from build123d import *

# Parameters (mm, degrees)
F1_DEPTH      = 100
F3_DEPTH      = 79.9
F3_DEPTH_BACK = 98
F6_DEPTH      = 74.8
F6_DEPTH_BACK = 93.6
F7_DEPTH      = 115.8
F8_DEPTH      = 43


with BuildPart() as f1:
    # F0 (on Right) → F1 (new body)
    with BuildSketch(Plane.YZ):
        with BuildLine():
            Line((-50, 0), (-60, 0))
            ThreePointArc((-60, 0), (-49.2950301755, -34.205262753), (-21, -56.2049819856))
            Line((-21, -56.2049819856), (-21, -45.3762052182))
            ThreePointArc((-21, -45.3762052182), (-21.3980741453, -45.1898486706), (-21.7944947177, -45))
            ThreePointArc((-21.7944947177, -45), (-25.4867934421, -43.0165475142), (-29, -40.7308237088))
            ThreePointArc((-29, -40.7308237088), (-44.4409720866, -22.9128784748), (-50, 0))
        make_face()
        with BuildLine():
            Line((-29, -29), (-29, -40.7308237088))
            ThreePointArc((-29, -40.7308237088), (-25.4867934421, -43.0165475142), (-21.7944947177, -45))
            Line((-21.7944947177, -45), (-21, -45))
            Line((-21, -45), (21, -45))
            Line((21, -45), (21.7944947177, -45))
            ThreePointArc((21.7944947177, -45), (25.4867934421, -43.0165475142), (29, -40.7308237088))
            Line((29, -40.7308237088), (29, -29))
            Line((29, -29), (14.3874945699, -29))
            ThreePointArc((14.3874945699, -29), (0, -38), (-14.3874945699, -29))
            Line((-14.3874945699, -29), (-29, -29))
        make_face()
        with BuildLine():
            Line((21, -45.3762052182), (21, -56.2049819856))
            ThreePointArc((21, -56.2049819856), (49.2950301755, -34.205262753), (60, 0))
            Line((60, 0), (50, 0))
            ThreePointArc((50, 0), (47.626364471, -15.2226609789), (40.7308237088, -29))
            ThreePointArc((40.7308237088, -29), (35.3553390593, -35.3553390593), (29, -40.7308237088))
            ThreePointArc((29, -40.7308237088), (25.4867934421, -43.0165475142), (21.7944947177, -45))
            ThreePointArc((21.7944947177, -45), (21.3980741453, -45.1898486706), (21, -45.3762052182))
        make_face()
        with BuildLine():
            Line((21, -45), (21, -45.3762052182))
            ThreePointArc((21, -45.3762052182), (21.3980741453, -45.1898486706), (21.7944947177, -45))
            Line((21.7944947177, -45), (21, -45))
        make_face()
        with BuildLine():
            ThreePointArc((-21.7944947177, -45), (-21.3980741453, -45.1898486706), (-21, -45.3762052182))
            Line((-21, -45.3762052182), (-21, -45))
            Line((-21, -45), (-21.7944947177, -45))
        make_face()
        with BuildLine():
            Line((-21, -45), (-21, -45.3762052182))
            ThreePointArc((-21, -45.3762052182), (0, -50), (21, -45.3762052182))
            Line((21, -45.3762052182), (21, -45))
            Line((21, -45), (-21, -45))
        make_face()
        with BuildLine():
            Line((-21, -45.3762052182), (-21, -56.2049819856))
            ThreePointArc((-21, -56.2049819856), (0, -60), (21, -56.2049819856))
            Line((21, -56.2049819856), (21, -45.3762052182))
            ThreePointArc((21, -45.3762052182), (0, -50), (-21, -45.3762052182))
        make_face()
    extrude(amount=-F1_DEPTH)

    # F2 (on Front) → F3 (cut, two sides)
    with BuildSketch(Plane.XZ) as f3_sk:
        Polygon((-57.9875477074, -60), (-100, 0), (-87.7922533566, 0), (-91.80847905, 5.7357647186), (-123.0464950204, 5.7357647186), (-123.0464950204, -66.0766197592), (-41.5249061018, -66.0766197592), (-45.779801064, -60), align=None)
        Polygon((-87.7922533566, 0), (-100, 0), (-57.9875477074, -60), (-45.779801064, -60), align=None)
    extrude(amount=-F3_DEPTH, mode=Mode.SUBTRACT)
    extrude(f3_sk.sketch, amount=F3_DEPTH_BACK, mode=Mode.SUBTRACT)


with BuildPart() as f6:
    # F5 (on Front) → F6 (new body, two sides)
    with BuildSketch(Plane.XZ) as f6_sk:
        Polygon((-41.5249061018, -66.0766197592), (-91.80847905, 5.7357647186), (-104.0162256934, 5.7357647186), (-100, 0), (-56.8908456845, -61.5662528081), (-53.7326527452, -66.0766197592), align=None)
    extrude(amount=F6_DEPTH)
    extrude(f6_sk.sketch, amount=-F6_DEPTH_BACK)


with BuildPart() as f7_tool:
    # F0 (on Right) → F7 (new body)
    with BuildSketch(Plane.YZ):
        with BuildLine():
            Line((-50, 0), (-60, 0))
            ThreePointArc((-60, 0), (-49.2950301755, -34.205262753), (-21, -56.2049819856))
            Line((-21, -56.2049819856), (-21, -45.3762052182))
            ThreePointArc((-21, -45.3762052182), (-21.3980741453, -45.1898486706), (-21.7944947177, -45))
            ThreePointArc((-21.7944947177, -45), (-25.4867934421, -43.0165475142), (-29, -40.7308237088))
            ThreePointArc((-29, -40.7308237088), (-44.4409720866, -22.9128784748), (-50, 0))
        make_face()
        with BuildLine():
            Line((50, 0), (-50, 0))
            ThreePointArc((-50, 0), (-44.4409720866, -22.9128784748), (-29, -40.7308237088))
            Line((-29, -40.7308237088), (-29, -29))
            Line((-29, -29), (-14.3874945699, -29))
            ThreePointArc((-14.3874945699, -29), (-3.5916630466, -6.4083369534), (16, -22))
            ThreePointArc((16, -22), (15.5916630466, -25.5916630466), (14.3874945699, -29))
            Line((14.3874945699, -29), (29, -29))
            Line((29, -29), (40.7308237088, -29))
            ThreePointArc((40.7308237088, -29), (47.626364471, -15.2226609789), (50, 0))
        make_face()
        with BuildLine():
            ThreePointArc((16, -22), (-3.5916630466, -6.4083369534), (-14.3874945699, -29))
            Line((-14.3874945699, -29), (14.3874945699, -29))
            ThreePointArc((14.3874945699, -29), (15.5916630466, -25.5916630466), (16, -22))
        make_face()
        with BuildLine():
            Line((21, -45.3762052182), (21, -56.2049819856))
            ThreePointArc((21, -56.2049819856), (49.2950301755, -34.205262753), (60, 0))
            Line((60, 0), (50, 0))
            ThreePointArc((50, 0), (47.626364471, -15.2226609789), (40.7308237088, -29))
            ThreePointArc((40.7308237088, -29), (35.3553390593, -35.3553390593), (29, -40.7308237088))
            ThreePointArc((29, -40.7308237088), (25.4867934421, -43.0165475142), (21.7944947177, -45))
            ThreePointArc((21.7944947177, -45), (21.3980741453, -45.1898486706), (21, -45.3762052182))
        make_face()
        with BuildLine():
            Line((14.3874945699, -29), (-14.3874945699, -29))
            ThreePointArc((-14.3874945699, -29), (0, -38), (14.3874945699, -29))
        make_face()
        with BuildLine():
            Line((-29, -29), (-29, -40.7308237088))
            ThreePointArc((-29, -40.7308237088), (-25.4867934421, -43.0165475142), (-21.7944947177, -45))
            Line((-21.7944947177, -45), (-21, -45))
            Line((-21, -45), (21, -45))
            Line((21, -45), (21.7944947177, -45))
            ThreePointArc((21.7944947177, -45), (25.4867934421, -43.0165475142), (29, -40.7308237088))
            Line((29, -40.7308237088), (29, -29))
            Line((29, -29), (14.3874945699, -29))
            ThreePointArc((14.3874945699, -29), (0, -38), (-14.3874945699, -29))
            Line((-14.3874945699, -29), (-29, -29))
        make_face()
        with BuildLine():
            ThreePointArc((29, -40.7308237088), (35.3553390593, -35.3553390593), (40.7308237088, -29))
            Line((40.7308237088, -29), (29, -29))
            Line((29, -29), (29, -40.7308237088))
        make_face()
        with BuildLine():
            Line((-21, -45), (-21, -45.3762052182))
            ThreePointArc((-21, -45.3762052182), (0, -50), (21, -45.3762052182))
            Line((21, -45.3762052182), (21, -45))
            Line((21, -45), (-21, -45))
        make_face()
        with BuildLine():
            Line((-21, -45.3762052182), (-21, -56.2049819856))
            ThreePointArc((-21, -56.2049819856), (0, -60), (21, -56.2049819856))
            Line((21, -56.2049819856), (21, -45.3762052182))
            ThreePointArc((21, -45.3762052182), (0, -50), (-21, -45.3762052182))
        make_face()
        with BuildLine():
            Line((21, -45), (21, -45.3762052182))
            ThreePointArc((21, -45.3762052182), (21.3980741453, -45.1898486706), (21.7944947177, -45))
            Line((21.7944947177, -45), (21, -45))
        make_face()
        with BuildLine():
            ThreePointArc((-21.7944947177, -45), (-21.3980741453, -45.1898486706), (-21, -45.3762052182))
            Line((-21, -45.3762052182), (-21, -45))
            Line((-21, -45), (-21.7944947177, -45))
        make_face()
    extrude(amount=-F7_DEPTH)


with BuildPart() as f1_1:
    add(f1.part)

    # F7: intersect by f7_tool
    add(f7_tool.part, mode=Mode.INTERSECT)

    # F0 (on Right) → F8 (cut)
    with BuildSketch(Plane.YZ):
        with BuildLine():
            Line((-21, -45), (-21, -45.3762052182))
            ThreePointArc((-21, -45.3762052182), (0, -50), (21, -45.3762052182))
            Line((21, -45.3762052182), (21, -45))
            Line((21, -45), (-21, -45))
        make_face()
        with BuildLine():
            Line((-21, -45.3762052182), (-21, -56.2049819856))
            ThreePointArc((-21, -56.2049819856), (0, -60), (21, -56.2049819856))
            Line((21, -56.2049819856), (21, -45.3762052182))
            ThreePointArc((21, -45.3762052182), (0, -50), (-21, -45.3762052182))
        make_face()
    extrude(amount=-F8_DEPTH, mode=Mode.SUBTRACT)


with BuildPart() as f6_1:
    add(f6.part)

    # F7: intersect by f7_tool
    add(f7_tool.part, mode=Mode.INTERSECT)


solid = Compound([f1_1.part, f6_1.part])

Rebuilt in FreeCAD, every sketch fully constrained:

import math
import FreeCAD as App
import Part
import Sketcher
from FreeCAD import Vector
Q = App.Units.Quantity


def add_polygon(sketch, points):
    """Adds a closed chain of lines whose ends are joined by coincident constraints."""
    first, n = sketch.GeometryCount, len(points)
    for a, b in zip(points, points[1:] + points[:1]):
        sketch.addGeometry(Part.LineSegment(App.Vector(*a, 0), App.Vector(*b, 0)), False)
    for i in range(n):
        sketch.addConstraint(Sketcher.Constraint("Coincident", first + i, 2, first + (i + 1) % n, 1))

doc = App.newDocument("Part")
body = doc.addObject("PartDesign::Body", "Body")

sketch1 = doc.addObject("Sketcher::SketchObject", "Sketch")
body.addObject(sketch1)
sketch1.AttachmentSupport = (doc.YZ_Plane, [""])
sketch1.MapMode = "FlatFace"
sketch1.addGeometry(Part.LineSegment(Vector(-50, 0, 0), Vector(-60, 0, 0)), False)
sketch1.addGeometry(Part.ArcOfCircle(Part.Circle(Vector(0, 0, 0), Vector(0, 0, 1), 60), math.radians(180), math.radians(360)), False)
sketch1.addGeometry(Part.LineSegment(Vector(60, 0, 0), Vector(50, 0, 0)), False)
sketch1.addGeometry(Part.ArcOfCircle(Part.Circle(Vector(0, 0, 0), Vector(0, 0, 1), 50), math.radians(-35), math.radians(0)), False)
sketch1.addGeometry(Part.ArcOfCircle(Part.Circle(Vector(0, 0, 0), Vector(0, 0, 1), 50), math.radians(-54.55), math.radians(-35.45)), False)
sketch1.addGeometry(Part.LineSegment(Vector(29, -41, 0), Vector(29, -29, 0)), False)
sketch1.addGeometry(Part.LineSegment(Vector(29, -29, 0), Vector(14, -29, 0)), False)
sketch1.addGeometry(Part.ArcOfCircle(Part.Circle(Vector(0, -22, 0), Vector(0, 0, 1), 16), math.radians(-154), math.radians(-26)), False)
sketch1.addGeometry(Part.LineSegment(Vector(-14, -29, 0), Vector(-29, -29, 0)), False)
sketch1.addGeometry(Part.LineSegment(Vector(-29, -29, 0), Vector(-29, -41, 0)), False)
sketch1.addGeometry(Part.ArcOfCircle(Part.Circle(Vector(0, 0, 0), Vector(0, 0, 1), 50), math.radians(180), math.radians(235)), False)
sketch1.addConstraint(Sketcher.Constraint("Coincident", 0, 2, 1, 1))
sketch1.addConstraint(Sketcher.Constraint("Coincident", 1, 2, 2, 1))
sketch1.addConstraint(Sketcher.Constraint("Coincident", 2, 2, 3, 2))
sketch1.addConstraint(Sketcher.Constraint("Tangent", 3, 1, 4, 2))
sketch1.addConstraint(Sketcher.Constraint("Coincident", 4, 1, 5, 1))
sketch1.addConstraint(Sketcher.Constraint("Coincident", 5, 2, 6, 1))
sketch1.addConstraint(Sketcher.Constraint("Coincident", 6, 2, 7, 2))
sketch1.addConstraint(Sketcher.Constraint("Coincident", 7, 1, 8, 1))
sketch1.addConstraint(Sketcher.Constraint("Coincident", 8, 2, 9, 1))
sketch1.addConstraint(Sketcher.Constraint("Coincident", 9, 2, 10, 2))
sketch1.addConstraint(Sketcher.Constraint("Coincident", 10, 1, 0, 1))
sketch1.addConstraint(Sketcher.Constraint("Horizontal", 0))
sketch1.addConstraint(Sketcher.Constraint("Horizontal", 2))
sketch1.addConstraint(Sketcher.Constraint("Vertical", 5))
sketch1.addConstraint(Sketcher.Constraint("Horizontal", 6))
sketch1.addConstraint(Sketcher.Constraint("Horizontal", 8))
sketch1.addConstraint(Sketcher.Constraint("Vertical", 9))
sketch1.addConstraint(Sketcher.Constraint("Coincident", 1, 3, -1, 1))
sketch1.addConstraint(Sketcher.Constraint("Coincident", 3, 3, -1, 1))
sketch1.addConstraint(Sketcher.Constraint("Coincident", 10, 3, -1, 1))
sketch1.addConstraint(Sketcher.Constraint("Equal", 3, 4))
sketch1.addConstraint(Sketcher.Constraint("Equal", 4, 10))
sketch1.addConstraint(Sketcher.Constraint("Symmetric", 6, 2, 7, 1, -2))
sketch1.addConstraint(Sketcher.Constraint("PointOnObject", 0, 2, -1))
sketch1.addConstraint(Sketcher.Constraint("PointOnObject", 1, 2, -1))
sketch1.addConstraint(Sketcher.Constraint("Horizontal", 3, 1, 5, 2))
sketch1.addConstraint(Sketcher.Constraint("Horizontal", 4, 1, 9, 2))
sketch1.addConstraint(Sketcher.Constraint("Radius", 1, 60.0))
sketch1.addConstraint(Sketcher.Constraint("Radius", 3, 50.0))
sketch1.addConstraint(Sketcher.Constraint("Radius", 7, 16.0))
sketch1.addConstraint(Sketcher.Constraint("DistanceY", 7, 3, -1, 1, 22.0))
sketch1.addConstraint(Sketcher.Constraint("DistanceY", 3, 1, -1, 1, 29.0))
sketch1.addConstraint(Sketcher.Constraint("DistanceX", -1, 1, 4, 1, 29.0))
pad1 = doc.addObject("PartDesign::Pad", "Pad")
body.addObject(pad1)
pad1.Profile = sketch1
pad1.Length = 100
pad1.Reversed = True

sketch2 = doc.addObject("Sketcher::SketchObject", "Sketch001")
body.addObject(sketch2)
sketch2.AttachmentSupport = (doc.XZ_Plane, [""])
sketch2.MapMode = "FlatFace"
add_polygon(sketch2, [(-88, 0), (-92, 6), (-123, 6), (-123, -66), (-42, -66), (-46, -60)])
sketch2.addConstraint(Sketcher.Constraint("Horizontal", 1))
sketch2.addConstraint(Sketcher.Constraint("Vertical", 2))
sketch2.addConstraint(Sketcher.Constraint("Horizontal", 3))
sketch2.addConstraint(Sketcher.Constraint("PointOnObject", 5, 2, -1))
sketch2.addConstraint(Sketcher.Constraint("Parallel", 0, 4))
sketch2.addConstraint(Sketcher.Constraint("Parallel", 4, 5))
sketch2.addConstraint(Sketcher.Constraint("Angle", 0, Q("125 deg")))
sketch2.addConstraint(Sketcher.Constraint("DistanceY", 4, 2, -1, 1, 60.0))
sketch2.addConstraint(Sketcher.Constraint("DistanceX", 3, 1, 3, 2, 81.521589))
sketch2.addConstraint(Sketcher.Constraint("DistanceX", 4, 2, -1, 1, 45.779801))
sketch2.addConstraint(Sketcher.Constraint("DistanceX", 1, 2, 1, 1, 31.238016))
sketch2.addConstraint(Sketcher.Constraint("DistanceX", 0, 2, -1, 1, 91.808479))
pocket1 = doc.addObject("PartDesign::Pocket", "Pocket")
body.addObject(pocket1)
pocket1.Profile = sketch2
pocket1.Type = "ThroughAll"
pocket1.Midplane = True
body2 = doc.addObject("PartDesign::Body", "Body001")

sketch3 = doc.addObject("Sketcher::SketchObject", "Sketch002")
body2.addObject(sketch3)
sketch3.AttachmentSupport = (doc.getObject("XZ_Plane001"), [""])
sketch3.MapMode = "FlatFace"
add_polygon(sketch3, [(-42, -66), (-92, 6), (-104, 6), (-100, 0), (-57, -62), (-54, -66)])
sketch3.addConstraint(Sketcher.Constraint("Horizontal", 1))
sketch3.addConstraint(Sketcher.Constraint("Horizontal", 5))
sketch3.addConstraint(Sketcher.Constraint("PointOnObject", 2, 2, -1))
sketch3.addConstraint(Sketcher.Constraint("Parallel", 0, 2))
sketch3.addConstraint(Sketcher.Constraint("Parallel", 2, 3))
sketch3.addConstraint(Sketcher.Constraint("Parallel", 3, 4))
sketch3.addConstraint(Sketcher.Constraint("Angle", 0, Q("125 deg")))
sketch3.addConstraint(Sketcher.Constraint("DistanceX", 2, 2, -1, 1, 100.0))
sketch3.addConstraint(Sketcher.Constraint("Distance", 4, 5.506141))
sketch3.addConstraint(Sketcher.Constraint("DistanceX", 1, 2, 1, 1, 12.207747))
sketch3.addConstraint(Sketcher.Constraint("DistanceX", 0, 2, -1, 1, 91.808479))
sketch3.addConstraint(Sketcher.Constraint("DistanceY", 4, 2, -1, 1, 66.07662))
pad2 = doc.addObject("PartDesign::Pad", "Pad001")
body2.addObject(pad2)
pad2.Profile = sketch3
pad2.Type = "TwoLengths"
pad2.Length = 74.8
pad2.Length2 = 93.6
body3 = doc.addObject("PartDesign::Body", "Body002")

sketch4 = doc.addObject("Sketcher::SketchObject", "Sketch003")
body3.addObject(sketch4)
sketch4.AttachmentSupport = (doc.getObject("YZ_Plane002"), [""])
sketch4.MapMode = "FlatFace"
sketch4.addGeometry(Part.ArcOfCircle(Part.Circle(Vector(0, 0, 0), Vector(0, 0, 1), 60), math.radians(180), math.radians(360)), False)
sketch4.addGeometry(Part.LineSegment(Vector(60, 0, 0), Vector(-60, 0, 0)), False)
sketch4.addConstraint(Sketcher.Constraint("Coincident", 0, 1, 1, 2))
sketch4.addConstraint(Sketcher.Constraint("Coincident", 1, 1, 0, 2))
sketch4.addConstraint(Sketcher.Constraint("Horizontal", 1))
sketch4.addConstraint(Sketcher.Constraint("Coincident", 0, 3, -1, 1))
sketch4.addConstraint(Sketcher.Constraint("PointOnObject", 0, 1, -1))
sketch4.addConstraint(Sketcher.Constraint("Radius", 0, 60.0))
pad3 = doc.addObject("PartDesign::Pad", "Pad002")
body3.addObject(pad3)
pad3.Profile = sketch4
pad3.Length = 115.8
pad3.Reversed = True
doc.recompute()

body4 = doc.addObject("PartDesign::Body", "Body003")
body4.BaseFeature = body3
boolean = doc.addObject("PartDesign::Boolean", "Boolean")
body.addObject(boolean)
boolean.Type = "Common"
boolean.addObjects([body4])
doc.recompute()

sketch5 = doc.addObject("Sketcher::SketchObject", "Sketch004")
body.addObject(sketch5)
sketch5.AttachmentSupport = (doc.YZ_Plane, [""])
sketch5.MapMode = "FlatFace"
sketch5.addGeometry(Part.LineSegment(Vector(-21, -45, 0), Vector(-21, -56, 0)), False)
sketch5.addGeometry(Part.ArcOfCircle(Part.Circle(Vector(0, 0, 0), Vector(0, 0, 1), 60), math.radians(-110), math.radians(-70)), False)
sketch5.addGeometry(Part.LineSegment(Vector(21, -56, 0), Vector(21, -45, 0)), False)
sketch5.addGeometry(Part.LineSegment(Vector(21, -45, 0), Vector(-21, -45, 0)), False)
sketch5.addConstraint(Sketcher.Constraint("Coincident", 0, 2, 1, 1))
sketch5.addConstraint(Sketcher.Constraint("Coincident", 1, 2, 2, 1))
sketch5.addConstraint(Sketcher.Constraint("Coincident", 2, 2, 3, 1))
sketch5.addConstraint(Sketcher.Constraint("Coincident", 3, 2, 0, 1))
sketch5.addConstraint(Sketcher.Constraint("Vertical", 0))
sketch5.addConstraint(Sketcher.Constraint("Vertical", 2))
sketch5.addConstraint(Sketcher.Constraint("Horizontal", 3))
sketch5.addConstraint(Sketcher.Constraint("Coincident", 1, 3, -1, 1))
sketch5.addConstraint(Sketcher.Constraint("Horizontal", 0, 2, 1, 2))
sketch5.addConstraint(Sketcher.Constraint("Radius", 1, 60.0))
sketch5.addConstraint(Sketcher.Constraint("DistanceX", 3, 2, 3, 1, 42.0))
sketch5.addConstraint(Sketcher.Constraint("DistanceY", 2, 2, -1, 1, 45.0))
pocket2 = doc.addObject("PartDesign::Pocket", "Pocket001")
body.addObject(pocket2)
pocket2.Profile = sketch5
pocket2.Length = 43
doc.recompute()

boolean2 = doc.addObject("PartDesign::Boolean", "Boolean001")
body2.addObject(boolean2)
boolean2.Type = "Common"
boolean2.addObjects([body3])

doc.recompute()
